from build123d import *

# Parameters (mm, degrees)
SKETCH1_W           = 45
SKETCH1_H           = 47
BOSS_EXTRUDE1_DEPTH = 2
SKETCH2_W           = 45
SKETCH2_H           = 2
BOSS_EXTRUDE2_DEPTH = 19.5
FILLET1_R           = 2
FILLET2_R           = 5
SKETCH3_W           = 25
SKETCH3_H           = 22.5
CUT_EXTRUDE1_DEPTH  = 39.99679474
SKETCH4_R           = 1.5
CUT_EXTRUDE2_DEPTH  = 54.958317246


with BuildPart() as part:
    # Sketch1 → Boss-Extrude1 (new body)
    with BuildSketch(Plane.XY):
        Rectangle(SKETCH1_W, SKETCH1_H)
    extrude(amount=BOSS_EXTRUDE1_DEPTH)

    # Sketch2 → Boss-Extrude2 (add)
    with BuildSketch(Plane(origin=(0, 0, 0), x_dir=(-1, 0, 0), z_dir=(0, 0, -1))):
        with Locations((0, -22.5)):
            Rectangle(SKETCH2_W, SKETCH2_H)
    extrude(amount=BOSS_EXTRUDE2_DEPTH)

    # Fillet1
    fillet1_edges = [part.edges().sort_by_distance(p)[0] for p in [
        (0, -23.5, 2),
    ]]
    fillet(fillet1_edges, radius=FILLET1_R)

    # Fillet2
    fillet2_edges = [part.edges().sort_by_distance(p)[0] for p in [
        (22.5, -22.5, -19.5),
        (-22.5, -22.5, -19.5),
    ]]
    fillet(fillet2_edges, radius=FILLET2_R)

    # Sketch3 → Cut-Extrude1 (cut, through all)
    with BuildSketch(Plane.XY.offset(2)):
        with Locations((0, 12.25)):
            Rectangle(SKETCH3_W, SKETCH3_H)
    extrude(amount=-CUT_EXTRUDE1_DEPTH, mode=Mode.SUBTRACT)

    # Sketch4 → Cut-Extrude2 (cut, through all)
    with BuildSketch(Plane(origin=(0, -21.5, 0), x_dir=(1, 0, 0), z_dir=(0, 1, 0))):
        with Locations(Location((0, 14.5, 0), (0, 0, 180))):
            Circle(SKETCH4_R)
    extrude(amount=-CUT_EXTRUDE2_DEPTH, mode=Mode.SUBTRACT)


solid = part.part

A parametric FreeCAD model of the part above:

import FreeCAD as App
import Part
import Sketcher
Q = App.Units.Quantity


def edges_at(feature, points):
    """Names of the edges that pass closest to the given points."""
    edges = feature.Shape.Edges
    near = lambda p: min(range(len(edges)), key=lambda i: edges[i].distToShape(Part.Vertex(*p))[0])
    return sorted({f"Edge{near(p) + 1}" for p in points})


def add_polygon(sketch, points):
    """Adds a closed chain of lines whose ends are joined by coincident constraints."""
    first, n = sketch.GeometryCount, len(points)
    for a, b in zip(points, points[1:] + points[:1]):
        sketch.addGeometry(Part.LineSegment(App.Vector(*a, 0), App.Vector(*b, 0)), False)
    for i in range(n):
        sketch.addConstraint(Sketcher.Constraint("Coincident", first + i, 2, first + (i + 1) % n, 1))

doc = App.newDocument("Part")
params = doc.addObject("Spreadsheet::Sheet", "Params")
for row, (alias, value) in enumerate([
    ("sketch1_width", "45 mm"),
    ("sketch1_height", "47 mm"),
    ("pad1_length", "2 mm"),
    ("sketch2_width", "45 mm"),
    ("sketch2_height", "2 mm"),
    ("pad2_length", "19.5 mm"),
    ("fillet_radius", "2 mm"),
    ("fillet2_radius", "5 mm"),
    ("sketch3_width", "25 mm"),
    ("sketch3_height", "22.5 mm"),
    ("sketch4_diameter", "3 mm"),
], start=1):
    params.set(f"A{row}", alias)
    params.set(f"B{row}", "=" + value)
    params.setAlias(f"B{row}", alias)

body = doc.addObject("PartDesign::Body", "Body")

sketch1 = body.newObject("Sketcher::SketchObject", "Sketch")
sketch1.AttachmentSupport = (doc.getObject("XY_Plane"), [""])
sketch1.MapMode = "FlatFace"
add_polygon(sketch1, [(-22, 24), (-22, -24), (22, -24), (22, 24)])
sketch1.addConstraint([
    Sketcher.Constraint("Vertical", 0),
    Sketcher.Constraint("Horizontal", 1),
    Sketcher.Constraint("Vertical", 2),
    Sketcher.Constraint("Horizontal", 3),
    Sketcher.Constraint("Symmetric", 0, 2, 2, 2, -1, 1),
    Sketcher.Constraint("DistanceX", 1, 1, 1, 2, Q("45 mm")),
    Sketcher.Constraint("DistanceY", 0, 2, 0, 1, Q("47 mm")),
])
sketch1.setExpression("Constraints[9]", "Params.sketch1_width")
sketch1.setExpression("Constraints[10]", "Params.sketch1_height")
pad1 = body.newObject("PartDesign::Pad", "Pad")
pad1.Profile = sketch1
pad1.setExpression("Length", "Params.pad1_length")

sketch2 = body.newObject("Sketcher::SketchObject", "Sketch001")
sketch2.AttachmentSupport = (doc.getObject("XY_Plane"), [""])
sketch2.MapMode = "FlatFace"
add_polygon(sketch2, [(22.5, -21.5), (22.5, -23.5), (-22.5, -23.5), (-22.5, -21.5)])
sketch2.addConstraint([
    Sketcher.Constraint("Vertical", 0),
    Sketcher.Constraint("Horizontal", 1),
    Sketcher.Constraint("Vertical", 2),
    Sketcher.Constraint("Horizontal", 3),
    Sketcher.Constraint("DistanceX", 1, 2, 1, 1, Q("45 mm")),
    Sketcher.Constraint("DistanceY", 0, 2, 0, 1, Q("2 mm")),
    Sketcher.Constraint("DistanceX", -1, 1, 0, 2, Q("22.5 mm")),
    Sketcher.Constraint("DistanceY", 0, 2, -1, 1, Q("23.5 mm")),
])
sketch2.setExpression("Constraints[8]", "Params.sketch2_width")
sketch2.setExpression("Constraints[9]", "Params.sketch2_height")
pad2 = body.newObject("PartDesign::Pad", "Pad001")
pad2.Profile = sketch2
pad2.setExpression("Length", "Params.pad2_length")
pad2.Reversed = True
doc.recompute()

fillet = body.newObject("PartDesign::Fillet", "Fillet")
fillet.Base = (pad2, edges_at(pad2, [(0, -23.5, 2)]))
fillet.setExpression("Radius", "Params.fillet_radius")
doc.recompute()

fillet2 = body.newObject("PartDesign::Fillet", "Fillet001")
fillet2.Base = (fillet, edges_at(fillet, [(22.5, -22.5, -19.5), (-22.5, -22.5, -19.5)]))
fillet2.setExpression("Radius", "Params.fillet2_radius")

sketch3 = body.newObject("Sketcher::SketchObject", "Sketch002")
sketch3.AttachmentSupport = (doc.getObject("XY_Plane"), [""])
sketch3.MapMode = "FlatFace"
sketch3.AttachmentOffset = App.Placement(App.Vector(0, 0, 2), App.Rotation())
add_polygon(sketch3, [(-12, 24), (-12, 1), (12, 1), (12, 24)])
sketch3.addConstraint([
    Sketcher.Constraint("Vertical", 0),
    Sketcher.Constraint("Horizontal", 1),
    Sketcher.Constraint("Vertical", 2),
    Sketcher.Constraint("Horizontal", 3),
    Sketcher.Constraint("DistanceX", 1, 1, 1, 2, Q("25 mm")),
    Sketcher.Constraint("DistanceY", 0, 2, 0, 1, Q("22.5 mm")),
    Sketcher.Constraint("DistanceY", -1, 1, 0, 2, Q("1 mm")),
    Sketcher.Constraint("DistanceX", 0, 2, -1, 1, Q("12.5 mm")),
])
sketch3.setExpression("Constraints[8]", "Params.sketch3_width")
sketch3.setExpression("Constraints[9]", "Params.sketch3_height")
pocket1 = body.newObject("PartDesign::Pocket", "Pocket")
pocket1.Profile = sketch3
pocket1.Type = "ThroughAll"

sketch4 = body.newObject("Sketcher::SketchObject", "Sketch003")
sketch4.AttachmentSupport = (doc.getObject("XZ_Plane"), [""])
sketch4.MapMode = "FlatFace"
sketch4.AttachmentOffset = App.Placement(App.Vector(0, 0, 21.5), App.Rotation())
sketch4.addGeometry(Part.Circle(App.Vector(0, -14.5, 0), App.Vector(0, 0, 1), 1.5), False)
sketch4.addConstraint([
    Sketcher.Constraint("PointOnObject", 0, 3, -2),
    Sketcher.Constraint("Diameter", 0, Q("3 mm")),
    Sketcher.Constraint("DistanceY", 0, 3, -1, 1, Q("14.5 mm")),
])
sketch4.setExpression("Constraints[1]", "Params.sketch4_diameter")
pocket2 = body.newObject("PartDesign::Pocket", "Pocket001")
pocket2.Profile = sketch4
pocket2.Type = "ThroughAll"
pocket2.Reversed = True

doc.recompute()
